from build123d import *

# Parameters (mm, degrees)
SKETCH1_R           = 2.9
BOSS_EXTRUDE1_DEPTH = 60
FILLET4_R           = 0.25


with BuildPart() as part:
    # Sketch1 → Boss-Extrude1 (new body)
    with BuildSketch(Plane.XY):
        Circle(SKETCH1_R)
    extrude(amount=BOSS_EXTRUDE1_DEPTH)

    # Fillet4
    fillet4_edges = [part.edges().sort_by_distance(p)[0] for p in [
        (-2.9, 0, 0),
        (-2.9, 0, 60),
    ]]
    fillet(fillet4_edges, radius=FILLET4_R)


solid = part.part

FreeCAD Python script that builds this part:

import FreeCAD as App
import Part
import Sketcher


def edges_at(feature, points):
    """Names of the edges that pass closest to the given points."""
    edges = feature.Shape.Edges
    near = lambda p: min(range(len(edges)), key=lambda i: edges[i].distToShape(Part.Vertex(*p))[0])
    return sorted({f"Edge{near(p) + 1}" for p in points})

doc = App.newDocument("Part")
body = doc.addObject("PartDesign::Body", "Body")

sketch1 = doc.addObject("Sketcher::SketchObject", "Sketch")
body.addObject(sketch1)
sketch1.AttachmentSupport = (doc.XY_Plane, [""])
sketch1.MapMode = "FlatFace"
sketch1.addGeometry(Part.Circle(App.Vector(0, 0, 0), App.Vector(0, 0, 1), 2.9), False)
sketch1.addConstraint([
    Sketcher.Constraint("Coincident", 0, 3, -1, 1),
    Sketcher.Constraint("Diameter", 0, 5.8),
])
pad1 = doc.addObject("PartDesign::Pad", "Pad")
body.addObject(pad1)
pad1.Profile = sketch1
pad1.Length = 60
doc.recompute()

fillet = doc.addObject("PartDesign::Fillet", "Fillet")
body.addObject(fillet)
fillet.Base = (pad1, edges_at(pad1, [(-2.9, 0, 0), (-2.9, 0, 60)]))
fillet.Radius = 0.25

doc.recompute()
